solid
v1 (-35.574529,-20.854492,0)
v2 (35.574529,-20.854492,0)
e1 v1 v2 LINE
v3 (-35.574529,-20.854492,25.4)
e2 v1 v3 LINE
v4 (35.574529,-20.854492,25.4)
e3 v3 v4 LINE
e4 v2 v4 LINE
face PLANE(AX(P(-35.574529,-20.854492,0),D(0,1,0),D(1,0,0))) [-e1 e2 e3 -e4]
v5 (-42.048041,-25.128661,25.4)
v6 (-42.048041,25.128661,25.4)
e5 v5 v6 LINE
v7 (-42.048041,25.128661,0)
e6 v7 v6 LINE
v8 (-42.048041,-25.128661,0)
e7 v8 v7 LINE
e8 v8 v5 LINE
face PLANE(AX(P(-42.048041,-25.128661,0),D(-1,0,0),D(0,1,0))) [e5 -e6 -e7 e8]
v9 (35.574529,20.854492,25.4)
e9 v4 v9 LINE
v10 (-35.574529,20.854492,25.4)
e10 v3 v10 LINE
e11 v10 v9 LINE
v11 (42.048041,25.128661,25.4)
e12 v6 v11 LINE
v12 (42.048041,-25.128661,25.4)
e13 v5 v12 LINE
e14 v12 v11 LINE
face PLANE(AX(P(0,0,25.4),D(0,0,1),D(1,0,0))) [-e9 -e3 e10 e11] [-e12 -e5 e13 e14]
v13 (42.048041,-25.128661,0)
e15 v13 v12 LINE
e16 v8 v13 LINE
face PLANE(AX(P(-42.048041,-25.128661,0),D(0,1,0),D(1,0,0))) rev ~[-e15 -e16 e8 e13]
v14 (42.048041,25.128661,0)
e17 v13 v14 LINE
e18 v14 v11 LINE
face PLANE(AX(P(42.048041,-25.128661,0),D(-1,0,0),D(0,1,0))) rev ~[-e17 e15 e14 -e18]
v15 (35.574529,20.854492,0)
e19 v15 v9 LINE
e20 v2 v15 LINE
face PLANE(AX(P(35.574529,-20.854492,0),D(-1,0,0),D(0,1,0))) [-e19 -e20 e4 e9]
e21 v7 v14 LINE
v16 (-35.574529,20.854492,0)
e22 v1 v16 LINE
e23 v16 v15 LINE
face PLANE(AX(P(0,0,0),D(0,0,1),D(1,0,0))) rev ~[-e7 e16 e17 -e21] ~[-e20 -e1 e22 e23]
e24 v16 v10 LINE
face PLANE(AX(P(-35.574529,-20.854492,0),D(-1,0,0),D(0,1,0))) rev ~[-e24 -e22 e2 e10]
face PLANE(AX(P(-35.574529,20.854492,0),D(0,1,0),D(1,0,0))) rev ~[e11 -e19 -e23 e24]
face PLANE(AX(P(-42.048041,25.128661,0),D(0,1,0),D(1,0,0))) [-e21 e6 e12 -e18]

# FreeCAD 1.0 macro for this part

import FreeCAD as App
import Part
import Sketcher
from FreeCAD import Vector
Q = App.Units.Quantity

doc = App.newDocument("Part")
params = doc.addObject("Spreadsheet::Sheet", "Params")
for row, (alias, value) in enumerate([
    ("pad1_length", "1 in"),
], start=1):
    params.set(f"A{row}", alias)
    params.set(f"B{row}", "=" + value)
    params.setAlias(f"B{row}", alias)

body = doc.addObject("PartDesign::Body", "Body")

# Sketch on XY plane
sketch1 = doc.addObject("Sketcher::SketchObject", "Sketch")
body.addObject(sketch1)
sketch1.AttachmentSupport = (doc.XY_Plane, [""])
sketch1.MapMode = "FlatFace"
sketch1.addGeometry([
    Part.LineSegment(Vector(-42, 25, 0), Vector(-42, -25, 0)),  # 0
    Part.LineSegment(Vector(-42, -25, 0), Vector(42, -25, 0)),  # 1
    Part.LineSegment(Vector(42, -25, 0), Vector(42, 25, 0)),  # 2
    Part.LineSegment(Vector(42, 25, 0), Vector(-42, 25, 0)),  # 3
    Part.LineSegment(Vector(36, -21, 0), Vector(-36, -21, 0)),  # 4
    Part.LineSegment(Vector(-36, -21, 0), Vector(-36, 21, 0)),  # 5
    Part.LineSegment(Vector(-36, 21, 0), Vector(36, 21, 0)),  # 6
    Part.LineSegment(Vector(36, 21, 0), Vector(36, -21, 0)),  # 7
], False)
sketch1.addConstraint([
    Sketcher.Constraint("Coincident", 0, 2, 1, 1),
    Sketcher.Constraint("Coincident", 1, 2, 2, 1),
    Sketcher.Constraint("Coincident", 2, 2, 3, 1),
    Sketcher.Constraint("Coincident", 3, 2, 0, 1),
    Sketcher.Constraint("Coincident", 4, 2, 5, 1),
    Sketcher.Constraint("Coincident", 5, 2, 6, 1),
    Sketcher.Constraint("Coincident", 6, 2, 7, 1),
    Sketcher.Constraint("Coincident", 7, 2, 4, 1),
    Sketcher.Constraint("Vertical", 0),
    Sketcher.Constraint("Horizontal", 1),
    Sketcher.Constraint("Vertical", 2),
    Sketcher.Constraint("Horizontal", 3),
    Sketcher.Constraint("Horizontal", 4),
    Sketcher.Constraint("Vertical", 5),
    Sketcher.Constraint("Horizontal", 6),
    Sketcher.Constraint("Vertical", 7),
    Sketcher.Constraint("Symmetric", 0, 2, 2, 2, -1, 1),
    Sketcher.Constraint("Symmetric", 4, 2, 6, 2, -1, 1),
    Sketcher.Constraint("DistanceX", 1, 1, 1, 2, Q("84.096082 mm")),
    Sketcher.Constraint("DistanceX", 4, 2, 4, 1, Q("71.149058 mm")),
    Sketcher.Constraint("DistanceY", 0, 2, 0, 1, Q("50.257322 mm")),
    Sketcher.Constraint("DistanceY", 5, 1, 5, 2, Q("41.708984 mm")),
])
pad1 = doc.addObject("PartDesign::Pad", "Pad")
body.addObject(pad1)
pad1.Profile = sketch1
pad1.setExpression("Length", "Params.pad1_length")

doc.recompute()
